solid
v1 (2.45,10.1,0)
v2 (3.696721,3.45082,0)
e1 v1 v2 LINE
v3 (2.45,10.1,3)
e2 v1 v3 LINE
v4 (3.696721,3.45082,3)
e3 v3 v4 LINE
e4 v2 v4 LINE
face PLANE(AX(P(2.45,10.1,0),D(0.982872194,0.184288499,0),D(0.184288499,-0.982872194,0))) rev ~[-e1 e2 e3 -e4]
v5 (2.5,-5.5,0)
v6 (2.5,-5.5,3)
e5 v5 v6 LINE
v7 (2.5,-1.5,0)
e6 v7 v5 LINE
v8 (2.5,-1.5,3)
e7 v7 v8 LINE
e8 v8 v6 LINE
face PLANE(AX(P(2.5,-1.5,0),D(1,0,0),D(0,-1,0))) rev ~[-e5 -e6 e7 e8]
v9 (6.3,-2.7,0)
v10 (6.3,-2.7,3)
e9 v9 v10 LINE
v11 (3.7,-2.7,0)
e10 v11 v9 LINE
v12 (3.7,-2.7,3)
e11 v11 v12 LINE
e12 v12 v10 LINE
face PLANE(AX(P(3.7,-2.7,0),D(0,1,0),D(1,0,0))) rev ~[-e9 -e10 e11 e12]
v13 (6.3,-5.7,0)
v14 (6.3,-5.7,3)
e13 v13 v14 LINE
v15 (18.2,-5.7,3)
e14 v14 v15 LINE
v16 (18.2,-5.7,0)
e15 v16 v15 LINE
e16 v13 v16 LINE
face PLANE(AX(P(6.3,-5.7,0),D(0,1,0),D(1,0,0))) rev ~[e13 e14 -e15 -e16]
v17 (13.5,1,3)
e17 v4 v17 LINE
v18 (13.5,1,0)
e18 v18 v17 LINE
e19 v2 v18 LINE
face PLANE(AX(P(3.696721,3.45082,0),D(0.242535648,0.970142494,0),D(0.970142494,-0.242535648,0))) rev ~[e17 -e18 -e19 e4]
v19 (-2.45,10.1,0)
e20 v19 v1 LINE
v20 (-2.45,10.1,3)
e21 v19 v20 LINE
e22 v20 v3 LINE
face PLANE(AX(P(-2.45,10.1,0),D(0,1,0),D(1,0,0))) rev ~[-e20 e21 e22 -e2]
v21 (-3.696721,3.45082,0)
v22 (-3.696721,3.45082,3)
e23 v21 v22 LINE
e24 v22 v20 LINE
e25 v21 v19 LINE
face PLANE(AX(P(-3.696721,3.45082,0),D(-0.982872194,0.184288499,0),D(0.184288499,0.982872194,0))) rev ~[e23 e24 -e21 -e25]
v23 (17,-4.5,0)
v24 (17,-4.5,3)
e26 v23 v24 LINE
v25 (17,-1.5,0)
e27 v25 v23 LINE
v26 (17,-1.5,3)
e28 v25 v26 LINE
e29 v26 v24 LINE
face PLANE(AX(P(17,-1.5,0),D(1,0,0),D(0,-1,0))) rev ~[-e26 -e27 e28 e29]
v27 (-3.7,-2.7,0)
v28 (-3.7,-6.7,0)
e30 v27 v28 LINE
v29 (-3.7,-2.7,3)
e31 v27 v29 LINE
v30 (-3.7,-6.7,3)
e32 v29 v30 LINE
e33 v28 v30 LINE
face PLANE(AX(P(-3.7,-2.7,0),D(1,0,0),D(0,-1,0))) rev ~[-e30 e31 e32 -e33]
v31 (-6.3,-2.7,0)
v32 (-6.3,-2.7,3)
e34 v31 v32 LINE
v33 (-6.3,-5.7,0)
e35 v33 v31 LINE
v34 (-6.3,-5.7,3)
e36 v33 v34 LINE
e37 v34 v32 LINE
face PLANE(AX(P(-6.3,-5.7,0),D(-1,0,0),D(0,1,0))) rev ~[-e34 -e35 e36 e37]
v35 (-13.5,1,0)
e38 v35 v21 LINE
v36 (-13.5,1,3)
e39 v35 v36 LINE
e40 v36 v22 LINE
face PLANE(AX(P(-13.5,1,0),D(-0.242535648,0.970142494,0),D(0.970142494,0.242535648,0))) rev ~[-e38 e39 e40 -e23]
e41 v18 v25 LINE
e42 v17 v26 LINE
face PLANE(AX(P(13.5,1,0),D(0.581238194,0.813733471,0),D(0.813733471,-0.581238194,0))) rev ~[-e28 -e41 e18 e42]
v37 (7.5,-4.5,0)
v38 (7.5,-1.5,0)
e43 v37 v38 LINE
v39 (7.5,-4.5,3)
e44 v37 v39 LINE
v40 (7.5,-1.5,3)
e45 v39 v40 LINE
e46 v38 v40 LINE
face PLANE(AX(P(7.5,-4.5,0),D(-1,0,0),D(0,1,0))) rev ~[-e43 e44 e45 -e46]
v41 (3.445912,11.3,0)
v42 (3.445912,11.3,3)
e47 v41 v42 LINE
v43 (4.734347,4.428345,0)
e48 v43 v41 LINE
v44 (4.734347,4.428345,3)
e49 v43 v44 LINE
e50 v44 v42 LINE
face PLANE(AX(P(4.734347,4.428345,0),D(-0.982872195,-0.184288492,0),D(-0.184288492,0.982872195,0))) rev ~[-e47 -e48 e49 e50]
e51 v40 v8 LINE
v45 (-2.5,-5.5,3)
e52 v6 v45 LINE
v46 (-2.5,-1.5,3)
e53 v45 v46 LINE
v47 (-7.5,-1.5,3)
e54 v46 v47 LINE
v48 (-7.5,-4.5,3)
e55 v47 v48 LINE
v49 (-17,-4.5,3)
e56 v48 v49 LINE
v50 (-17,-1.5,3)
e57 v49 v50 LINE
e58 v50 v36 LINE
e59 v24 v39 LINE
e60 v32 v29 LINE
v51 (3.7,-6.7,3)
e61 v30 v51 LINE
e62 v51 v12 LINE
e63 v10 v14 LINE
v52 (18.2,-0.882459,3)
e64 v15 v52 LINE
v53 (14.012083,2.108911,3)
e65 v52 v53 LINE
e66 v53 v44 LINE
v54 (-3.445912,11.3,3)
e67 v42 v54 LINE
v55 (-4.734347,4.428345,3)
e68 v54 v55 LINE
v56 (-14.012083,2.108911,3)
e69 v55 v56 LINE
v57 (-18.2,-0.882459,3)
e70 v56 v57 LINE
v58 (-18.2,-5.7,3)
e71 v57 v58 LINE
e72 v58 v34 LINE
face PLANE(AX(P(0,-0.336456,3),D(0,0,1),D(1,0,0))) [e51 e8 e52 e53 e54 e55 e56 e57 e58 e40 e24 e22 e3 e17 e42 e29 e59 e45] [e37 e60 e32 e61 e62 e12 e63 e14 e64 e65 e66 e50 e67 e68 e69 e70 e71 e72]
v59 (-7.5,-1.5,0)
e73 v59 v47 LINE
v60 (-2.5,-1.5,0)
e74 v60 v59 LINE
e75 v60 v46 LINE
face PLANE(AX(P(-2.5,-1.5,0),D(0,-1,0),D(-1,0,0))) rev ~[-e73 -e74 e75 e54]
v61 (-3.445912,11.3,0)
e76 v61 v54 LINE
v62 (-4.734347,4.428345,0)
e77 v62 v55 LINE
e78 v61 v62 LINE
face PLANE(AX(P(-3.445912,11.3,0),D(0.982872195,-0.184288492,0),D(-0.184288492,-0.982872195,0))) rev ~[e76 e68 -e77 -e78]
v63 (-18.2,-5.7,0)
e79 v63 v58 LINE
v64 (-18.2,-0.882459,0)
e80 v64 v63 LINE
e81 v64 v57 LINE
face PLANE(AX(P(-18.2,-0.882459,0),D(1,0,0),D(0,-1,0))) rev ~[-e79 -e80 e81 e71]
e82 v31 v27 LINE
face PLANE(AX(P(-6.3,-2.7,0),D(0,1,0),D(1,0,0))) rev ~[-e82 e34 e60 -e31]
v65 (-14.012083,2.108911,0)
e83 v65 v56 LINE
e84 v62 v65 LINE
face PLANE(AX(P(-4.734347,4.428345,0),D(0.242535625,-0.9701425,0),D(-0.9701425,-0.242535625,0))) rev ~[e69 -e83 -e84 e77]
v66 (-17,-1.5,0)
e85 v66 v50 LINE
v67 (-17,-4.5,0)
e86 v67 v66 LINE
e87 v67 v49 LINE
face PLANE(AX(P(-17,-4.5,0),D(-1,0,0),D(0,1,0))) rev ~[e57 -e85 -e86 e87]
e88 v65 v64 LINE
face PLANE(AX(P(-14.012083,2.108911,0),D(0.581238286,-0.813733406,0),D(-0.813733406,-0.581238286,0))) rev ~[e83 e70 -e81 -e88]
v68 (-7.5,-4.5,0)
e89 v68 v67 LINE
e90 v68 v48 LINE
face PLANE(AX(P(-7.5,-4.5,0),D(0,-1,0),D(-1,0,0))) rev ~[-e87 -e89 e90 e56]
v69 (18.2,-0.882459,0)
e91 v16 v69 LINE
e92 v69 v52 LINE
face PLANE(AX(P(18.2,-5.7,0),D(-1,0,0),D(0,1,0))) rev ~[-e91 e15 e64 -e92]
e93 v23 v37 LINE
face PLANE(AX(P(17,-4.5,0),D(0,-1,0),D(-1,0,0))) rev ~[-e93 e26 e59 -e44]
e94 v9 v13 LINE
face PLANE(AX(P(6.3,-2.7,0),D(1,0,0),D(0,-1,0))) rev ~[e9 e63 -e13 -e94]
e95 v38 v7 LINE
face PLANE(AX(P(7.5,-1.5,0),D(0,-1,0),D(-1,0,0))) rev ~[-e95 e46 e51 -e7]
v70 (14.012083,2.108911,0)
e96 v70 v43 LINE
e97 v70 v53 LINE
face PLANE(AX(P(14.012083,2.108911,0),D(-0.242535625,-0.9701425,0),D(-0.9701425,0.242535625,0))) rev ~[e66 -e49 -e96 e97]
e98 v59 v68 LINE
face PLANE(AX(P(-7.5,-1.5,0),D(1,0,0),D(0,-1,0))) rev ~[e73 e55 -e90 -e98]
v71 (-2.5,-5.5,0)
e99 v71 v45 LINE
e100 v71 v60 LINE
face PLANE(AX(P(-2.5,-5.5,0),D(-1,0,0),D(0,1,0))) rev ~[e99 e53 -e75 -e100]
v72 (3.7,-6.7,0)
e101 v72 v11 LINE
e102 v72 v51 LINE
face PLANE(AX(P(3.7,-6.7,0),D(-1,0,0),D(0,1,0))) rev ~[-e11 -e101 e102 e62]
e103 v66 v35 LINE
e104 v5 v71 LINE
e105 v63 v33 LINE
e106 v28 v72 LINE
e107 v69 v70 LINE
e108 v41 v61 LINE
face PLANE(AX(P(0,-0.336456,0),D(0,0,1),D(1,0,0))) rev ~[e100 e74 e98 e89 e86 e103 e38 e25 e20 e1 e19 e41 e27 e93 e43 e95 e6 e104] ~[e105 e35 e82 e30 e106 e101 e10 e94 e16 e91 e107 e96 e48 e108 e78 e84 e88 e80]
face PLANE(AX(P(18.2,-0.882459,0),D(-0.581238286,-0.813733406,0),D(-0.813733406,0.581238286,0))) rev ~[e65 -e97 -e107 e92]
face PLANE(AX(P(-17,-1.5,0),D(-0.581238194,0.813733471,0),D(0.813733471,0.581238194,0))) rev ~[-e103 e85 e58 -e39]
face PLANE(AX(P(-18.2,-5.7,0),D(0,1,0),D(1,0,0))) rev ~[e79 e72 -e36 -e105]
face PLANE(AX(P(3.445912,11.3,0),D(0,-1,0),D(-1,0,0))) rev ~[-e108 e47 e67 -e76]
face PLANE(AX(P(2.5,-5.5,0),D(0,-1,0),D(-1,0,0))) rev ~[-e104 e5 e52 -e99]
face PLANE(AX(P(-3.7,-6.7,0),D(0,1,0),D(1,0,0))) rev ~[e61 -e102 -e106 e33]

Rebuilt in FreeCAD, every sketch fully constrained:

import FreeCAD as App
import Part
import Sketcher


def add_polygon(sketch, points):
    """Adds a closed chain of lines whose ends are joined by coincident constraints."""
    first, n = sketch.GeometryCount, len(points)
    for a, b in zip(points, points[1:] + points[:1]):
        sketch.addGeometry(Part.LineSegment(App.Vector(*a, 0), App.Vector(*b, 0)), False)
    for i in range(n):
        sketch.addConstraint(Sketcher.Constraint("Coincident", first + i, 2, first + (i + 1) % n, 1))

doc = App.newDocument("Part")
body = doc.addObject("PartDesign::Body", "Body")

# Sketch on XY plane
sketch1 = body.newObject("Sketcher::SketchObject", "Sketch")
sketch1.AttachmentSupport = (doc.getObject("XY_Plane"), [""])
sketch1.MapMode = "FlatFace"
add_polygon(sketch1, [(3.7, -6.7), (3.7, -2.7), (6.3, -2.7), (6.3, -5.7), (18.2, -5.7), (18.2, -0.882459), (14.012083, 2.108911), (4.734347, 4.428345), (3.445912, 11.3), (-3.445912, 11.3), (-4.734347, 4.428345), (-14.012083, 2.108911), (-18.2, -0.882459), (-18.2, -5.7), (-6.3, -5.7), (-6.3, -2.7), (-3.7, -2.7), (-3.7, -6.7)])  # lines 0-17
add_polygon(sketch1, [(7.5, -1.5), (2.5, -1.5), (2.5, -5.5), (-2.5, -5.5), (-2.5, -1.5), (-7.5, -1.5), (-7.5, -4.5), (-17, -4.5), (-17, -1.5), (-13.5, 1), (-3.696721, 3.45082), (-2.45, 10.1), (2.45, 10.1), (3.696721, 3.45082), (13.5, 1), (17, -1.5), (17, -4.5), (7.5, -4.5)])  # lines 18-35
sketch1.addConstraint([
    Sketcher.Constraint("Vertical", 0),
    Sketcher.Constraint("Horizontal", 1),
    Sketcher.Constraint("Vertical", 2),
    Sketcher.Constraint("Horizontal", 3),
    Sketcher.Constraint("Vertical", 4),
    Sketcher.Constraint("Horizontal", 8),
    Sketcher.Constraint("Vertical", 12),
    Sketcher.Constraint("Horizontal", 13),
    Sketcher.Constraint("Vertical", 14),
    Sketcher.Constraint("Horizontal", 15),
    Sketcher.Constraint("Vertical", 16),
    Sketcher.Constraint("Horizontal", 17),
    Sketcher.Constraint("Horizontal", 18),
    Sketcher.Constraint("Vertical", 19),
    Sketcher.Constraint("Horizontal", 20),
    Sketcher.Constraint("Vertical", 21),
    Sketcher.Constraint("Horizontal", 22),
    Sketcher.Constraint("Vertical", 23),
    Sketcher.Constraint("Horizontal", 24),
    Sketcher.Constraint("Vertical", 25),
    Sketcher.Constraint("Horizontal", 29),
    Sketcher.Constraint("Vertical", 33),
    Sketcher.Constraint("Horizontal", 34),
    Sketcher.Constraint("Vertical", 35),
    Sketcher.Constraint("Symmetric", 6, 2, 9, 2, -2),
    Sketcher.Constraint("Symmetric", 5, 2, 10, 2, -2),
    Sketcher.Constraint("Symmetric", 4, 2, 11, 2, -2),
    Sketcher.Constraint("Symmetric", 2, 2, 13, 2, -2),
    Sketcher.Constraint("Symmetric", 0, 2, 15, 2, -2),
    Sketcher.Constraint("Symmetric", 18, 2, 21, 2, -2),
    Sketcher.Constraint("Symmetric", 27, 2, 30, 2, -2),
    Sketcher.Constraint("Symmetric", 26, 2, 31, 2, -2),
    Sketcher.Constraint("Symmetric", 25, 2, 32, 2, -2),
    Sketcher.Constraint("Symmetric", 23, 2, 34, 2, -2),
    Sketcher.Constraint("Parallel", 11, 26),
    Sketcher.Constraint("Parallel", 10, 27),
    Sketcher.Constraint("Parallel", 9, 28),
    Sketcher.Constraint("Parallel", 7, 30),
    Sketcher.Constraint("Horizontal", 22, 2, 25, 2),
    Sketcher.Constraint("Equal", 18, 20),
    Sketcher.Constraint("Equal", 16, 19),
    Sketcher.Constraint("Equal", 14, 23),
    Sketcher.Constraint("Equal", 7, 9),
    Sketcher.Constraint("DistanceX", 18, 2, 18, 1, 5.0),
    Sketcher.Constraint("DistanceY", 0, 1, 0, 2, 4.0),
    Sketcher.Constraint("DistanceY", 2, 2, 2, 1, 3.0),
    Sketcher.Constraint("DistanceX", 1, 1, 1, 2, 2.6),
    Sketcher.Constraint("DistanceX", 3, 1, 3, 2, 11.9),
    Sketcher.Constraint("DistanceX", 17, 1, 17, 2, 7.4),
    Sketcher.Constraint("DistanceX", 24, 2, 24, 1, 9.5),
    Sketcher.Constraint("DistanceX", 29, 1, 29, 2, 4.9),
    Sketcher.Constraint("DistanceY", -1, 1, 26, 2, 1.0),
    Sketcher.Constraint("DistanceY", 0, 2, 7, 2, 14.0),
    Sketcher.Constraint("DistanceX", 26, 2, 22, 2, 6.0),
    Sketcher.Constraint("DistanceY", 0, 2, -1, 1, 2.7),
    Sketcher.Constraint("DistanceY", 18, 2, -1, 1, 1.5),
    Sketcher.Constraint("DistanceY", -1, 1, 28, 2, 10.1),
    Sketcher.Constraint("DistanceY", 4, 1, 4, 2, 4.817541),
    Sketcher.Constraint("Distance", 6, 9.563271),
    Sketcher.Constraint("Distance", 27, 10.104989),
    Sketcher.Constraint("Distance", 28, 6.76505),
    Sketcher.Constraint("DistanceX", 8, 2, 8, 1, 6.891824),
])
pad1 = body.newObject("PartDesign::Pad", "Pad")
pad1.Profile = sketch1
pad1.Length = 3

doc.recompute()
